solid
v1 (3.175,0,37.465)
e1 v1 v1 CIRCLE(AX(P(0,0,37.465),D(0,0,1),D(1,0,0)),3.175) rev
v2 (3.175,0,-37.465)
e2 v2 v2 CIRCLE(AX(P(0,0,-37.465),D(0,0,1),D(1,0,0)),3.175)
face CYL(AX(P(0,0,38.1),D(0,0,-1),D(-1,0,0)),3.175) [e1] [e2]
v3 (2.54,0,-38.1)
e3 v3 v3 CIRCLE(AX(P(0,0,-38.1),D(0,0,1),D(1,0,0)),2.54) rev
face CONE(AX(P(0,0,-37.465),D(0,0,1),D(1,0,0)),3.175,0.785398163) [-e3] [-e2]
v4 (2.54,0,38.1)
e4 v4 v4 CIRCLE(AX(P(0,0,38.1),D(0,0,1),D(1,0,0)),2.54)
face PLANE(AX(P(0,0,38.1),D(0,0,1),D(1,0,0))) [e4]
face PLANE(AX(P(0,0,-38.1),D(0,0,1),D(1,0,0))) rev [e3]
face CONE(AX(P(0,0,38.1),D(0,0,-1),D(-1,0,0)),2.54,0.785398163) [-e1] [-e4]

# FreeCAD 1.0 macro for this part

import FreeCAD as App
import Part
import Sketcher

V = App.Vector
Q = App.Units.Quantity


def edges_at(feature, points):
    """Names of the edges that pass closest to the given points."""
    edges = feature.Shape.Edges
    near = lambda p: min(range(len(edges)), key=lambda i: edges[i].distToShape(Part.Vertex(*p))[0])
    return sorted({f"Edge{near(p) + 1}" for p in points})

doc = App.newDocument("Part")
body = doc.addObject("PartDesign::Body", "Body")

# Sketch on XY plane
sketch1 = body.newObject("Sketcher::SketchObject", "Sketch")
sketch1.AttachmentSupport = (doc.getObject("XY_Plane"), [""])
sketch1.MapMode = "FlatFace"
sketch1.addGeometry(Part.Circle(V(0, 0, 0), V(0, 0, 1), 3.2), False)
sketch1.addConstraint([
    Sketcher.Constraint("Coincident", 0, 3, -1, 1),
    Sketcher.Constraint("Diameter", 0, Q("0.25 in")),
])
pad1 = body.newObject("PartDesign::Pad", "Pad")
pad1.Profile = sketch1
pad1.Length = Q("3 in")
pad1.Midplane = True
doc.recompute()

chamfer = body.newObject("PartDesign::Chamfer", "Chamfer")
chamfer.Base = (pad1, edges_at(pad1, [(-3.175, 0, -38.1), (-3.175, 0, 38.1)]))
chamfer.Size = Q("0.025 in")

doc.recompute()
